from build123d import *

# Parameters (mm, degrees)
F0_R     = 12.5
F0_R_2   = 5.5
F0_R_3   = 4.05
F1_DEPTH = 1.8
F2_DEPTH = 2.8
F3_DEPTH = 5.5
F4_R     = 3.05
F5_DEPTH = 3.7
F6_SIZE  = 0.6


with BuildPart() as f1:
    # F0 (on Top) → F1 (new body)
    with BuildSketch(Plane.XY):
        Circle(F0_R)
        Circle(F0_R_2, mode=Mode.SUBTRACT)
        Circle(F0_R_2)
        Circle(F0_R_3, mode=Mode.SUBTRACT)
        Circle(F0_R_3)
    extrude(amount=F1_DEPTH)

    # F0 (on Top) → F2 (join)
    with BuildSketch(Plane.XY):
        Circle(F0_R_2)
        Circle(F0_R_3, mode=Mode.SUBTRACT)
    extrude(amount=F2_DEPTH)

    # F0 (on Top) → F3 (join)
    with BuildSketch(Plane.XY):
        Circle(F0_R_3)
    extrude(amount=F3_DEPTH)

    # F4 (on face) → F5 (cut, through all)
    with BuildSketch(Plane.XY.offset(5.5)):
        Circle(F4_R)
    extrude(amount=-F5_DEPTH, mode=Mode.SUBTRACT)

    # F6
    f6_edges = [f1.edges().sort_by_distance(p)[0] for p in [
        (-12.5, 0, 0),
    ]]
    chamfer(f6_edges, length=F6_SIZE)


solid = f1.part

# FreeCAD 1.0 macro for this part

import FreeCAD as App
import Part
import Sketcher

V = App.Vector
Q = App.Units.Quantity


def edges_at(feature, points):
    """Names of the edges that pass closest to the given points."""
    edges = feature.Shape.Edges
    near = lambda p: min(range(len(edges)), key=lambda i: edges[i].distToShape(Part.Vertex(*p))[0])
    return sorted({f"Edge{near(p) + 1}" for p in points})

doc = App.newDocument("Part")
body = doc.addObject("PartDesign::Body", "Body")

# Sketch on XY plane
sketch1 = body.newObject("Sketcher::SketchObject", "Sketch")
sketch1.AttachmentSupport = (doc.getObject("XY_Plane"), [""])
sketch1.MapMode = "FlatFace"
sketch1.addGeometry(Part.Circle(V(0, 0, 0), V(0, 0, 1), 12.5), False)
sketch1.addConstraint([
    Sketcher.Constraint("Coincident", 0, 3, -1, 1),
    Sketcher.Constraint("Diameter", 0, Q("25 mm")),
])
pad1 = body.newObject("PartDesign::Pad", "Pad")
pad1.Profile = sketch1
pad1.Length = 1.8

# Sketch on XY plane
sketch2 = body.newObject("Sketcher::SketchObject", "Sketch001")
sketch2.AttachmentSupport = (doc.getObject("XY_Plane"), [""])
sketch2.MapMode = "FlatFace"
sketch2.addGeometry([
    Part.Circle(V(0, 0, 0), V(0, 0, 1), 5.5),
    Part.Circle(V(0, 0, 0), V(0, 0, 1), 4.05),
], False)
sketch2.addConstraint([
    Sketcher.Constraint("Coincident", 0, 3, -1, 1),
    Sketcher.Constraint("Coincident", 1, 3, -1, 1),
    Sketcher.Constraint("Diameter", 0, Q("11 mm")),
    Sketcher.Constraint("Diameter", 1, Q("8.1 mm")),
])
pad2 = body.newObject("PartDesign::Pad", "Pad001")
pad2.Profile = sketch2
pad2.Length = 2.8

# Sketch on XY plane
sketch3 = body.newObject("Sketcher::SketchObject", "Sketch002")
sketch3.AttachmentSupport = (doc.getObject("XY_Plane"), [""])
sketch3.MapMode = "FlatFace"
sketch3.addGeometry(Part.Circle(V(0, 0, 0), V(0, 0, 1), 4.05), False)
sketch3.addConstraint([
    Sketcher.Constraint("Coincident", 0, 3, -1, 1),
    Sketcher.Constraint("Diameter", 0, Q("8.1 mm")),
])
pad3 = body.newObject("PartDesign::Pad", "Pad002")
pad3.Profile = sketch3
pad3.Length = 5.5

# Sketch on XY plane
sketch4 = body.newObject("Sketcher::SketchObject", "Sketch003")
sketch4.AttachmentSupport = (doc.getObject("XY_Plane"), [""])
sketch4.MapMode = "FlatFace"
sketch4.AttachmentOffset = App.Placement(V(0, 0, 5.5), App.Rotation())
sketch4.addGeometry(Part.Circle(V(0, 0, 0), V(0, 0, 1), 3.05), False)
sketch4.addConstraint([
    Sketcher.Constraint("Coincident", 0, 3, -1, 1),
    Sketcher.Constraint("Diameter", 0, Q("6.1 mm")),
])
pocket1 = body.newObject("PartDesign::Pocket", "Pocket")
pocket1.Profile = sketch4
pocket1.Length = 3.7
doc.recompute()

chamfer = body.newObject("PartDesign::Chamfer", "Chamfer")
chamfer.Base = (pocket1, edges_at(pocket1, [(-12.5, 0, 0)]))
chamfer.Size = 0.6

doc.recompute()
